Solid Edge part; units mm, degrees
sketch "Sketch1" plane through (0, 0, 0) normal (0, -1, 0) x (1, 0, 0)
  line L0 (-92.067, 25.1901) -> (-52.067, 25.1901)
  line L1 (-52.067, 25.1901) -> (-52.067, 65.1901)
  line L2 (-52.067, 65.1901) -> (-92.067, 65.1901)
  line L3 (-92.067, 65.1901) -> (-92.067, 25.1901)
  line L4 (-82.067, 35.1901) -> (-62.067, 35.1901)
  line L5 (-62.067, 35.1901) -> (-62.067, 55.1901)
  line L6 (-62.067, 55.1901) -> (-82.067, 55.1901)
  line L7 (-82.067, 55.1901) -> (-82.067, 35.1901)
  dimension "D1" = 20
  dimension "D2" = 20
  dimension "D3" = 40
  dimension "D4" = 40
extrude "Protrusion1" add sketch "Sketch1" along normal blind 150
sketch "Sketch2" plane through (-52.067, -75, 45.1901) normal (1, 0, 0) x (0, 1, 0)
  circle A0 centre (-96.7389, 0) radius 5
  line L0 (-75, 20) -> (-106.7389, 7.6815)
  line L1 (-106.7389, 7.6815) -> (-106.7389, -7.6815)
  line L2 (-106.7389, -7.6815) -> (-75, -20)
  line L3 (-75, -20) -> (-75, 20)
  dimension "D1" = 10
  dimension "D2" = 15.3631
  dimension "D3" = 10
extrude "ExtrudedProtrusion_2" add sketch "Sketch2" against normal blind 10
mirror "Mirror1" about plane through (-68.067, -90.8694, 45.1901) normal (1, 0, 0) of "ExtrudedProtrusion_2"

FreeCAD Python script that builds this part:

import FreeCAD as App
import Part
import Sketcher

V = App.Vector
Q = App.Units.Quantity

doc = App.newDocument("Part")
body = doc.addObject("PartDesign::Body", "Body")

# Sketch on XZ plane
sketch1 = body.newObject("Sketcher::SketchObject", "Sketch")
sketch1.AttachmentSupport = (doc.getObject("XZ_Plane"), [""])
sketch1.MapMode = "FlatFace"
sketch1.addGeometry([
    Part.LineSegment(V(-92, 65, 0), V(-92, 25, 0)),  # 0
    Part.LineSegment(V(-92, 25, 0), V(-52, 25, 0)),  # 1
    Part.LineSegment(V(-52, 25, 0), V(-52, 65, 0)),  # 2
    Part.LineSegment(V(-52, 65, 0), V(-92, 65, 0)),  # 3
    Part.LineSegment(V(-62, 35, 0), V(-82, 35, 0)),  # 4
    Part.LineSegment(V(-82, 35, 0), V(-82, 55, 0)),  # 5
    Part.LineSegment(V(-82, 55, 0), V(-62, 55, 0)),  # 6
    Part.LineSegment(V(-62, 55, 0), V(-62, 35, 0)),  # 7
], False)
sketch1.addConstraint([
    Sketcher.Constraint("Coincident", 0, 2, 1, 1),
    Sketcher.Constraint("Coincident", 1, 2, 2, 1),
    Sketcher.Constraint("Coincident", 2, 2, 3, 1),
    Sketcher.Constraint("Coincident", 3, 2, 0, 1),
    Sketcher.Constraint("Coincident", 4, 2, 5, 1),
    Sketcher.Constraint("Coincident", 5, 2, 6, 1),
    Sketcher.Constraint("Coincident", 6, 2, 7, 1),
    Sketcher.Constraint("Coincident", 7, 2, 4, 1),
    Sketcher.Constraint("Vertical", 0),
    Sketcher.Constraint("Horizontal", 1),
    Sketcher.Constraint("Vertical", 2),
    Sketcher.Constraint("Horizontal", 3),
    Sketcher.Constraint("Horizontal", 4),
    Sketcher.Constraint("Vertical", 5),
    Sketcher.Constraint("Horizontal", 6),
    Sketcher.Constraint("Vertical", 7),
    Sketcher.Constraint("Equal", 3, 0),
    Sketcher.Constraint("Equal", 6, 5),
    Sketcher.Constraint("DistanceX", 1, 1, 1, 2, Q("40 mm")),
    Sketcher.Constraint("DistanceX", 4, 2, 4, 1, Q("20 mm")),
    Sketcher.Constraint("DistanceX", 1, 2, -1, 1, Q("52.067 mm")),
    Sketcher.Constraint("DistanceX", 4, 2, -1, 1, Q("82.067 mm")),
    Sketcher.Constraint("DistanceY", 0, 2, 4, 2, Q("10 mm")),
    Sketcher.Constraint("DistanceY", -1, 1, 0, 2, Q("25.19 mm")),
])
pad1 = body.newObject("PartDesign::Pad", "Pad")
pad1.Profile = sketch1
pad1.Length = 150

# Sketch on YZ plane
sketch2 = body.newObject("Sketcher::SketchObject", "Sketch001")
sketch2.AttachmentSupport = (doc.getObject("YZ_Plane"), [""])
sketch2.MapMode = "FlatFace"
sketch2.AttachmentOffset = App.Placement(V(0, 0, -52.067), App.Rotation())
sketch2.addGeometry([
    Part.LineSegment(V(-150, 25, 0), V(-150, 65, 0)),  # 0
    Part.LineSegment(V(-150, 65, 0), V(-182, 53, 0)),  # 1
    Part.LineSegment(V(-182, 53, 0), V(-182, 38, 0)),  # 2
    Part.LineSegment(V(-182, 38, 0), V(-150, 25, 0)),  # 3
    Part.Circle(V(-172, 45, 0), V(0, 0, 1), 5),  # 4
], False)
sketch2.addConstraint([
    Sketcher.Constraint("Coincident", 0, 2, 1, 1),
    Sketcher.Constraint("Coincident", 1, 2, 2, 1),
    Sketcher.Constraint("Coincident", 2, 2, 3, 1),
    Sketcher.Constraint("Coincident", 3, 2, 0, 1),
    Sketcher.Constraint("Vertical", 0),
    Sketcher.Constraint("Vertical", 2),
    Sketcher.Constraint("Equal", 1, 3),
    Sketcher.Constraint("Diameter", 4, Q("10 mm")),
    Sketcher.Constraint("DistanceY", 0, 1, 0, 2, Q("40 mm")),
    Sketcher.Constraint("DistanceX", 0, 2, -1, 1, Q("150 mm")),
    Sketcher.Constraint("DistanceY", 4, 3, 0, 2, Q("20 mm")),
    Sketcher.Constraint("DistanceX", 1, 2, 4, 3, Q("10 mm")),
    Sketcher.Constraint("DistanceY", 2, 2, 2, 1, Q("15.363 mm")),
    Sketcher.Constraint("DistanceY", -1, 1, 4, 3, Q("45.19 mm")),
    Sketcher.Constraint("DistanceX", 4, 3, -1, 1, Q("171.739 mm")),
])
pad2 = body.newObject("PartDesign::Pad", "Pad001")
pad2.Profile = sketch2
pad2.Length = 10
pad2.Reversed = True
doc.recompute()

datumplane = body.newObject("PartDesign::Plane", "DatumPlane")
datumplane.AttachmentSupport = (doc.getObject("YZ_Plane"), [""])
datumplane.MapMode = "FlatFace"
datumplane.AttachmentOffset = App.Placement(V(0, 0, -68.067), App.Rotation())
mirrored = body.newObject("PartDesign::Mirrored", "Mirrored")
mirrored.Originals = [pad2]
mirrored.MirrorPlane = (datumplane, [""])
body.Tip = mirrored

doc.recompute()
